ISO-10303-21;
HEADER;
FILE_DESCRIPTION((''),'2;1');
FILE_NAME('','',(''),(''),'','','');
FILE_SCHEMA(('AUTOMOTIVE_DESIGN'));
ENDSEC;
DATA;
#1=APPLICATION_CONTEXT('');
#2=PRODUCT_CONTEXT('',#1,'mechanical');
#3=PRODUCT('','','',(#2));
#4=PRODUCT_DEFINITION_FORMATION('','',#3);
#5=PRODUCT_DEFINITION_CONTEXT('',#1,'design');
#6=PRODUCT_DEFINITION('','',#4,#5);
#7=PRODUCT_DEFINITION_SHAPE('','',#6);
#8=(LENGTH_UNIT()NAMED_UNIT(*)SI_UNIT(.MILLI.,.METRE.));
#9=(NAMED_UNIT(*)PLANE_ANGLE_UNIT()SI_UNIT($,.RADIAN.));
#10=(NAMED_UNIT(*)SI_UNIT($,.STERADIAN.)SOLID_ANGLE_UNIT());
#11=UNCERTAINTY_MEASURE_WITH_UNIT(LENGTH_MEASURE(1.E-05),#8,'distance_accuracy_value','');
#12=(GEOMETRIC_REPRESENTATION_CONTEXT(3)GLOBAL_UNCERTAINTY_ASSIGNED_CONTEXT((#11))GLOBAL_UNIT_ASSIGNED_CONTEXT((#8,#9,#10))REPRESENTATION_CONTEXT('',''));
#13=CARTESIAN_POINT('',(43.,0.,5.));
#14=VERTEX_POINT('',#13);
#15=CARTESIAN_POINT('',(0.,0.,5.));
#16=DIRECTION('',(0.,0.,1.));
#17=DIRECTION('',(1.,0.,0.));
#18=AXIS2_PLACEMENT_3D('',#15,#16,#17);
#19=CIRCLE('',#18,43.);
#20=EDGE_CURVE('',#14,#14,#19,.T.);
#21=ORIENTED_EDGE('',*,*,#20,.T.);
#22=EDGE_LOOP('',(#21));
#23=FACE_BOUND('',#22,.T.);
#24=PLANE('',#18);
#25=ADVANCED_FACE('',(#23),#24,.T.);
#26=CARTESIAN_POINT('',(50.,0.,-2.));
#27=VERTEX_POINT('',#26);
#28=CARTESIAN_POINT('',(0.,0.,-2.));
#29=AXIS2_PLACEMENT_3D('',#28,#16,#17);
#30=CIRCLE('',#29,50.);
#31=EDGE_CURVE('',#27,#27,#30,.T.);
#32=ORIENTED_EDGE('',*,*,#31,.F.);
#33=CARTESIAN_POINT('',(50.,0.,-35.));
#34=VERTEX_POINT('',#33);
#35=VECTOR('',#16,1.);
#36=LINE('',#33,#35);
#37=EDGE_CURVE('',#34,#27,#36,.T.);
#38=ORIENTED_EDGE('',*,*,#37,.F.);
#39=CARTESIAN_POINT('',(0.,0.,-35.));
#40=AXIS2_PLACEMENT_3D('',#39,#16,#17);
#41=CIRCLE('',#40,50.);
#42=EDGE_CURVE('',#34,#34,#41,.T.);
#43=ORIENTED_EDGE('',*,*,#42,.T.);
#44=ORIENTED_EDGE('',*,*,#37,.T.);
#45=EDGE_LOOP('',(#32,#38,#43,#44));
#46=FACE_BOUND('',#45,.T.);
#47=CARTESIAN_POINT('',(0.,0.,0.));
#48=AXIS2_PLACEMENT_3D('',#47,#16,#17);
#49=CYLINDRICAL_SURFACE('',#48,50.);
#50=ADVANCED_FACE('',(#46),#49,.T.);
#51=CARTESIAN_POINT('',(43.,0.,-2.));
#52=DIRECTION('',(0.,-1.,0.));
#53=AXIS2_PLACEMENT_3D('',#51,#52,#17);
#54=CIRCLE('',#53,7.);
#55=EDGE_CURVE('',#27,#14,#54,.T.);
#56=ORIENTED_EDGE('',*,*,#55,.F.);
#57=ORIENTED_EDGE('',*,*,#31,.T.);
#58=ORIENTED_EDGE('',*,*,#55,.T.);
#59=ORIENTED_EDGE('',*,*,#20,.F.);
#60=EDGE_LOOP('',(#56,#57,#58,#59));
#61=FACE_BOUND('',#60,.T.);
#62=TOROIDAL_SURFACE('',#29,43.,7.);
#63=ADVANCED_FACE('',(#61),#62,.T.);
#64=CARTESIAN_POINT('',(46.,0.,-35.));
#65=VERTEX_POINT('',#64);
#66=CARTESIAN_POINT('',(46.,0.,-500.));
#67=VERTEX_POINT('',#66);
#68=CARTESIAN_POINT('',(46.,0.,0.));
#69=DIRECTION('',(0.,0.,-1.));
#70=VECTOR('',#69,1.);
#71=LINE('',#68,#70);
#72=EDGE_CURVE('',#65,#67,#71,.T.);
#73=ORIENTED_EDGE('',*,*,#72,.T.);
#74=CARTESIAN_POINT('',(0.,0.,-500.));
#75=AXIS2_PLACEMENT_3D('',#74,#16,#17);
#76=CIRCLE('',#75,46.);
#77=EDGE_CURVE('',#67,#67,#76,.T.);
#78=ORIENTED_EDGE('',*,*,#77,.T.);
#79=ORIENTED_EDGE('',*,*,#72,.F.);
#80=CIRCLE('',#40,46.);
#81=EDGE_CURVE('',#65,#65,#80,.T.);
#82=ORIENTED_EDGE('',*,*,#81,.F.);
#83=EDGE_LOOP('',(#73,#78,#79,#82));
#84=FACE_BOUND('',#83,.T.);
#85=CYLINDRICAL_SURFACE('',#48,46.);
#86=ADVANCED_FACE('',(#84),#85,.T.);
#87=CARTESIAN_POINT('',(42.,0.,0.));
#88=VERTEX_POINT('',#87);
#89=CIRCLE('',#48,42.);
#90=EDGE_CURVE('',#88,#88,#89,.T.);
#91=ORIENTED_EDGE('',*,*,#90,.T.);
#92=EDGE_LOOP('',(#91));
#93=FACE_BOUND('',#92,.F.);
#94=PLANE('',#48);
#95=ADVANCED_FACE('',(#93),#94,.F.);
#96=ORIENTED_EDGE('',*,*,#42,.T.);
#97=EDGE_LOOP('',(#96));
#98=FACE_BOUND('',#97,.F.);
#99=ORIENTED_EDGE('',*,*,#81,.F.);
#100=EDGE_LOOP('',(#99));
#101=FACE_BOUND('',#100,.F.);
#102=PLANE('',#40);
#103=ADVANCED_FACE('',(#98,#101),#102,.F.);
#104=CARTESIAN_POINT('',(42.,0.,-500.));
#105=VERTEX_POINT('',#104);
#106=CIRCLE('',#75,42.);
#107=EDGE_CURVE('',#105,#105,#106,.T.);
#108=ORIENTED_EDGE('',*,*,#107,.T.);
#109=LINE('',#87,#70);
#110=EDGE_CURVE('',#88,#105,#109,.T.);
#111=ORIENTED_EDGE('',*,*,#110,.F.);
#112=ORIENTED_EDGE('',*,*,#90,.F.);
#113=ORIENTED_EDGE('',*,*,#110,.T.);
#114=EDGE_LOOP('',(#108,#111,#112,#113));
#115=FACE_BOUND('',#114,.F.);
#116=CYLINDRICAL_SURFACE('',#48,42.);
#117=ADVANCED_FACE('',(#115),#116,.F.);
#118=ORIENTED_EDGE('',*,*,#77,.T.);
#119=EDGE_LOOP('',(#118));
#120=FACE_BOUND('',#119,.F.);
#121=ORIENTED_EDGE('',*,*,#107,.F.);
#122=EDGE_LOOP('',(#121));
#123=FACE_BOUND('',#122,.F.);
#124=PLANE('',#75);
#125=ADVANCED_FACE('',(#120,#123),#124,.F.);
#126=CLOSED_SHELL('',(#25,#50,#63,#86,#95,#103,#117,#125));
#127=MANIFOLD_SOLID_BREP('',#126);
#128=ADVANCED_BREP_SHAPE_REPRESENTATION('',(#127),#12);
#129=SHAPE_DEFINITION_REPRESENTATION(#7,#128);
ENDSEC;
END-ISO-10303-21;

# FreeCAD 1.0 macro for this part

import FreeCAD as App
import Part
import Sketcher
from FreeCAD import Vector
Q = App.Units.Quantity


def edges_at(feature, points):
    """Names of the edges that pass closest to the given points."""
    edges = feature.Shape.Edges
    near = lambda p: min(range(len(edges)), key=lambda i: edges[i].distToShape(Part.Vertex(*p))[0])
    return sorted({f"Edge{near(p) + 1}" for p in points})

doc = App.newDocument("Part")
body = doc.addObject("PartDesign::Body", "Body")

# Sketch on XY plane
sketch1 = body.newObject("Sketcher::SketchObject", "Sketch")
sketch1.AttachmentSupport = (doc.getObject("XY_Plane"), [""])
sketch1.MapMode = "FlatFace"
sketch1.addGeometry(Part.Circle(Vector(0, 0, 0), Vector(0, 0, 1), 50), False)
sketch1.addConstraint(Sketcher.Constraint("Coincident", 0, 3, -1, 1))
sketch1.addConstraint(Sketcher.Constraint("Diameter", 0, Q("100 mm")))
pad1 = body.newObject("PartDesign::Pad", "Pad")
pad1.Profile = sketch1
pad1.Length = 5

# Sketch on XY plane
sketch2 = body.newObject("Sketcher::SketchObject", "Sketch001")
sketch2.AttachmentSupport = (doc.getObject("XY_Plane"), [""])
sketch2.MapMode = "FlatFace"
sketch2.addGeometry(Part.Circle(Vector(0, 0, 0), Vector(0, 0, 1), 46), False)
sketch2.addGeometry(Part.Circle(Vector(0, 0, 0), Vector(0, 0, 1), 42), False)
sketch2.addConstraint(Sketcher.Constraint("Coincident", 0, 3, -1, 1))
sketch2.addConstraint(Sketcher.Constraint("Coincident", 1, 3, -1, 1))
sketch2.addConstraint(Sketcher.Constraint("Diameter", 0, Q("92 mm")))
sketch2.addConstraint(Sketcher.Constraint("Diameter", 1, Q("84 mm")))
pad2 = body.newObject("PartDesign::Pad", "Pad001")
pad2.Profile = sketch2
pad2.Length = 500
pad2.Reversed = True

# Sketch on XY plane
sketch3 = body.newObject("Sketcher::SketchObject", "Sketch002")
sketch3.AttachmentSupport = (doc.getObject("XY_Plane"), [""])
sketch3.MapMode = "FlatFace"
sketch3.addGeometry(Part.Circle(Vector(0, 0, 0), Vector(0, 0, 1), 50), False)
sketch3.addGeometry(Part.Circle(Vector(0, 0, 0), Vector(0, 0, 1), 46), False)
sketch3.addConstraint(Sketcher.Constraint("Coincident", 0, 3, -1, 1))
sketch3.addConstraint(Sketcher.Constraint("Coincident", 1, 3, -1, 1))
sketch3.addConstraint(Sketcher.Constraint("Diameter", 0, Q("100 mm")))
sketch3.addConstraint(Sketcher.Constraint("Diameter", 1, Q("92 mm")))
pad3 = body.newObject("PartDesign::Pad", "Pad002")
pad3.Profile = sketch3
pad3.Length = 35
pad3.Reversed = True
doc.recompute()

fillet = body.newObject("PartDesign::Fillet", "Fillet")
fillet.Base = (pad3, edges_at(pad3, [(-50, 0, 5)]))
fillet.Radius = 7

doc.recompute()
